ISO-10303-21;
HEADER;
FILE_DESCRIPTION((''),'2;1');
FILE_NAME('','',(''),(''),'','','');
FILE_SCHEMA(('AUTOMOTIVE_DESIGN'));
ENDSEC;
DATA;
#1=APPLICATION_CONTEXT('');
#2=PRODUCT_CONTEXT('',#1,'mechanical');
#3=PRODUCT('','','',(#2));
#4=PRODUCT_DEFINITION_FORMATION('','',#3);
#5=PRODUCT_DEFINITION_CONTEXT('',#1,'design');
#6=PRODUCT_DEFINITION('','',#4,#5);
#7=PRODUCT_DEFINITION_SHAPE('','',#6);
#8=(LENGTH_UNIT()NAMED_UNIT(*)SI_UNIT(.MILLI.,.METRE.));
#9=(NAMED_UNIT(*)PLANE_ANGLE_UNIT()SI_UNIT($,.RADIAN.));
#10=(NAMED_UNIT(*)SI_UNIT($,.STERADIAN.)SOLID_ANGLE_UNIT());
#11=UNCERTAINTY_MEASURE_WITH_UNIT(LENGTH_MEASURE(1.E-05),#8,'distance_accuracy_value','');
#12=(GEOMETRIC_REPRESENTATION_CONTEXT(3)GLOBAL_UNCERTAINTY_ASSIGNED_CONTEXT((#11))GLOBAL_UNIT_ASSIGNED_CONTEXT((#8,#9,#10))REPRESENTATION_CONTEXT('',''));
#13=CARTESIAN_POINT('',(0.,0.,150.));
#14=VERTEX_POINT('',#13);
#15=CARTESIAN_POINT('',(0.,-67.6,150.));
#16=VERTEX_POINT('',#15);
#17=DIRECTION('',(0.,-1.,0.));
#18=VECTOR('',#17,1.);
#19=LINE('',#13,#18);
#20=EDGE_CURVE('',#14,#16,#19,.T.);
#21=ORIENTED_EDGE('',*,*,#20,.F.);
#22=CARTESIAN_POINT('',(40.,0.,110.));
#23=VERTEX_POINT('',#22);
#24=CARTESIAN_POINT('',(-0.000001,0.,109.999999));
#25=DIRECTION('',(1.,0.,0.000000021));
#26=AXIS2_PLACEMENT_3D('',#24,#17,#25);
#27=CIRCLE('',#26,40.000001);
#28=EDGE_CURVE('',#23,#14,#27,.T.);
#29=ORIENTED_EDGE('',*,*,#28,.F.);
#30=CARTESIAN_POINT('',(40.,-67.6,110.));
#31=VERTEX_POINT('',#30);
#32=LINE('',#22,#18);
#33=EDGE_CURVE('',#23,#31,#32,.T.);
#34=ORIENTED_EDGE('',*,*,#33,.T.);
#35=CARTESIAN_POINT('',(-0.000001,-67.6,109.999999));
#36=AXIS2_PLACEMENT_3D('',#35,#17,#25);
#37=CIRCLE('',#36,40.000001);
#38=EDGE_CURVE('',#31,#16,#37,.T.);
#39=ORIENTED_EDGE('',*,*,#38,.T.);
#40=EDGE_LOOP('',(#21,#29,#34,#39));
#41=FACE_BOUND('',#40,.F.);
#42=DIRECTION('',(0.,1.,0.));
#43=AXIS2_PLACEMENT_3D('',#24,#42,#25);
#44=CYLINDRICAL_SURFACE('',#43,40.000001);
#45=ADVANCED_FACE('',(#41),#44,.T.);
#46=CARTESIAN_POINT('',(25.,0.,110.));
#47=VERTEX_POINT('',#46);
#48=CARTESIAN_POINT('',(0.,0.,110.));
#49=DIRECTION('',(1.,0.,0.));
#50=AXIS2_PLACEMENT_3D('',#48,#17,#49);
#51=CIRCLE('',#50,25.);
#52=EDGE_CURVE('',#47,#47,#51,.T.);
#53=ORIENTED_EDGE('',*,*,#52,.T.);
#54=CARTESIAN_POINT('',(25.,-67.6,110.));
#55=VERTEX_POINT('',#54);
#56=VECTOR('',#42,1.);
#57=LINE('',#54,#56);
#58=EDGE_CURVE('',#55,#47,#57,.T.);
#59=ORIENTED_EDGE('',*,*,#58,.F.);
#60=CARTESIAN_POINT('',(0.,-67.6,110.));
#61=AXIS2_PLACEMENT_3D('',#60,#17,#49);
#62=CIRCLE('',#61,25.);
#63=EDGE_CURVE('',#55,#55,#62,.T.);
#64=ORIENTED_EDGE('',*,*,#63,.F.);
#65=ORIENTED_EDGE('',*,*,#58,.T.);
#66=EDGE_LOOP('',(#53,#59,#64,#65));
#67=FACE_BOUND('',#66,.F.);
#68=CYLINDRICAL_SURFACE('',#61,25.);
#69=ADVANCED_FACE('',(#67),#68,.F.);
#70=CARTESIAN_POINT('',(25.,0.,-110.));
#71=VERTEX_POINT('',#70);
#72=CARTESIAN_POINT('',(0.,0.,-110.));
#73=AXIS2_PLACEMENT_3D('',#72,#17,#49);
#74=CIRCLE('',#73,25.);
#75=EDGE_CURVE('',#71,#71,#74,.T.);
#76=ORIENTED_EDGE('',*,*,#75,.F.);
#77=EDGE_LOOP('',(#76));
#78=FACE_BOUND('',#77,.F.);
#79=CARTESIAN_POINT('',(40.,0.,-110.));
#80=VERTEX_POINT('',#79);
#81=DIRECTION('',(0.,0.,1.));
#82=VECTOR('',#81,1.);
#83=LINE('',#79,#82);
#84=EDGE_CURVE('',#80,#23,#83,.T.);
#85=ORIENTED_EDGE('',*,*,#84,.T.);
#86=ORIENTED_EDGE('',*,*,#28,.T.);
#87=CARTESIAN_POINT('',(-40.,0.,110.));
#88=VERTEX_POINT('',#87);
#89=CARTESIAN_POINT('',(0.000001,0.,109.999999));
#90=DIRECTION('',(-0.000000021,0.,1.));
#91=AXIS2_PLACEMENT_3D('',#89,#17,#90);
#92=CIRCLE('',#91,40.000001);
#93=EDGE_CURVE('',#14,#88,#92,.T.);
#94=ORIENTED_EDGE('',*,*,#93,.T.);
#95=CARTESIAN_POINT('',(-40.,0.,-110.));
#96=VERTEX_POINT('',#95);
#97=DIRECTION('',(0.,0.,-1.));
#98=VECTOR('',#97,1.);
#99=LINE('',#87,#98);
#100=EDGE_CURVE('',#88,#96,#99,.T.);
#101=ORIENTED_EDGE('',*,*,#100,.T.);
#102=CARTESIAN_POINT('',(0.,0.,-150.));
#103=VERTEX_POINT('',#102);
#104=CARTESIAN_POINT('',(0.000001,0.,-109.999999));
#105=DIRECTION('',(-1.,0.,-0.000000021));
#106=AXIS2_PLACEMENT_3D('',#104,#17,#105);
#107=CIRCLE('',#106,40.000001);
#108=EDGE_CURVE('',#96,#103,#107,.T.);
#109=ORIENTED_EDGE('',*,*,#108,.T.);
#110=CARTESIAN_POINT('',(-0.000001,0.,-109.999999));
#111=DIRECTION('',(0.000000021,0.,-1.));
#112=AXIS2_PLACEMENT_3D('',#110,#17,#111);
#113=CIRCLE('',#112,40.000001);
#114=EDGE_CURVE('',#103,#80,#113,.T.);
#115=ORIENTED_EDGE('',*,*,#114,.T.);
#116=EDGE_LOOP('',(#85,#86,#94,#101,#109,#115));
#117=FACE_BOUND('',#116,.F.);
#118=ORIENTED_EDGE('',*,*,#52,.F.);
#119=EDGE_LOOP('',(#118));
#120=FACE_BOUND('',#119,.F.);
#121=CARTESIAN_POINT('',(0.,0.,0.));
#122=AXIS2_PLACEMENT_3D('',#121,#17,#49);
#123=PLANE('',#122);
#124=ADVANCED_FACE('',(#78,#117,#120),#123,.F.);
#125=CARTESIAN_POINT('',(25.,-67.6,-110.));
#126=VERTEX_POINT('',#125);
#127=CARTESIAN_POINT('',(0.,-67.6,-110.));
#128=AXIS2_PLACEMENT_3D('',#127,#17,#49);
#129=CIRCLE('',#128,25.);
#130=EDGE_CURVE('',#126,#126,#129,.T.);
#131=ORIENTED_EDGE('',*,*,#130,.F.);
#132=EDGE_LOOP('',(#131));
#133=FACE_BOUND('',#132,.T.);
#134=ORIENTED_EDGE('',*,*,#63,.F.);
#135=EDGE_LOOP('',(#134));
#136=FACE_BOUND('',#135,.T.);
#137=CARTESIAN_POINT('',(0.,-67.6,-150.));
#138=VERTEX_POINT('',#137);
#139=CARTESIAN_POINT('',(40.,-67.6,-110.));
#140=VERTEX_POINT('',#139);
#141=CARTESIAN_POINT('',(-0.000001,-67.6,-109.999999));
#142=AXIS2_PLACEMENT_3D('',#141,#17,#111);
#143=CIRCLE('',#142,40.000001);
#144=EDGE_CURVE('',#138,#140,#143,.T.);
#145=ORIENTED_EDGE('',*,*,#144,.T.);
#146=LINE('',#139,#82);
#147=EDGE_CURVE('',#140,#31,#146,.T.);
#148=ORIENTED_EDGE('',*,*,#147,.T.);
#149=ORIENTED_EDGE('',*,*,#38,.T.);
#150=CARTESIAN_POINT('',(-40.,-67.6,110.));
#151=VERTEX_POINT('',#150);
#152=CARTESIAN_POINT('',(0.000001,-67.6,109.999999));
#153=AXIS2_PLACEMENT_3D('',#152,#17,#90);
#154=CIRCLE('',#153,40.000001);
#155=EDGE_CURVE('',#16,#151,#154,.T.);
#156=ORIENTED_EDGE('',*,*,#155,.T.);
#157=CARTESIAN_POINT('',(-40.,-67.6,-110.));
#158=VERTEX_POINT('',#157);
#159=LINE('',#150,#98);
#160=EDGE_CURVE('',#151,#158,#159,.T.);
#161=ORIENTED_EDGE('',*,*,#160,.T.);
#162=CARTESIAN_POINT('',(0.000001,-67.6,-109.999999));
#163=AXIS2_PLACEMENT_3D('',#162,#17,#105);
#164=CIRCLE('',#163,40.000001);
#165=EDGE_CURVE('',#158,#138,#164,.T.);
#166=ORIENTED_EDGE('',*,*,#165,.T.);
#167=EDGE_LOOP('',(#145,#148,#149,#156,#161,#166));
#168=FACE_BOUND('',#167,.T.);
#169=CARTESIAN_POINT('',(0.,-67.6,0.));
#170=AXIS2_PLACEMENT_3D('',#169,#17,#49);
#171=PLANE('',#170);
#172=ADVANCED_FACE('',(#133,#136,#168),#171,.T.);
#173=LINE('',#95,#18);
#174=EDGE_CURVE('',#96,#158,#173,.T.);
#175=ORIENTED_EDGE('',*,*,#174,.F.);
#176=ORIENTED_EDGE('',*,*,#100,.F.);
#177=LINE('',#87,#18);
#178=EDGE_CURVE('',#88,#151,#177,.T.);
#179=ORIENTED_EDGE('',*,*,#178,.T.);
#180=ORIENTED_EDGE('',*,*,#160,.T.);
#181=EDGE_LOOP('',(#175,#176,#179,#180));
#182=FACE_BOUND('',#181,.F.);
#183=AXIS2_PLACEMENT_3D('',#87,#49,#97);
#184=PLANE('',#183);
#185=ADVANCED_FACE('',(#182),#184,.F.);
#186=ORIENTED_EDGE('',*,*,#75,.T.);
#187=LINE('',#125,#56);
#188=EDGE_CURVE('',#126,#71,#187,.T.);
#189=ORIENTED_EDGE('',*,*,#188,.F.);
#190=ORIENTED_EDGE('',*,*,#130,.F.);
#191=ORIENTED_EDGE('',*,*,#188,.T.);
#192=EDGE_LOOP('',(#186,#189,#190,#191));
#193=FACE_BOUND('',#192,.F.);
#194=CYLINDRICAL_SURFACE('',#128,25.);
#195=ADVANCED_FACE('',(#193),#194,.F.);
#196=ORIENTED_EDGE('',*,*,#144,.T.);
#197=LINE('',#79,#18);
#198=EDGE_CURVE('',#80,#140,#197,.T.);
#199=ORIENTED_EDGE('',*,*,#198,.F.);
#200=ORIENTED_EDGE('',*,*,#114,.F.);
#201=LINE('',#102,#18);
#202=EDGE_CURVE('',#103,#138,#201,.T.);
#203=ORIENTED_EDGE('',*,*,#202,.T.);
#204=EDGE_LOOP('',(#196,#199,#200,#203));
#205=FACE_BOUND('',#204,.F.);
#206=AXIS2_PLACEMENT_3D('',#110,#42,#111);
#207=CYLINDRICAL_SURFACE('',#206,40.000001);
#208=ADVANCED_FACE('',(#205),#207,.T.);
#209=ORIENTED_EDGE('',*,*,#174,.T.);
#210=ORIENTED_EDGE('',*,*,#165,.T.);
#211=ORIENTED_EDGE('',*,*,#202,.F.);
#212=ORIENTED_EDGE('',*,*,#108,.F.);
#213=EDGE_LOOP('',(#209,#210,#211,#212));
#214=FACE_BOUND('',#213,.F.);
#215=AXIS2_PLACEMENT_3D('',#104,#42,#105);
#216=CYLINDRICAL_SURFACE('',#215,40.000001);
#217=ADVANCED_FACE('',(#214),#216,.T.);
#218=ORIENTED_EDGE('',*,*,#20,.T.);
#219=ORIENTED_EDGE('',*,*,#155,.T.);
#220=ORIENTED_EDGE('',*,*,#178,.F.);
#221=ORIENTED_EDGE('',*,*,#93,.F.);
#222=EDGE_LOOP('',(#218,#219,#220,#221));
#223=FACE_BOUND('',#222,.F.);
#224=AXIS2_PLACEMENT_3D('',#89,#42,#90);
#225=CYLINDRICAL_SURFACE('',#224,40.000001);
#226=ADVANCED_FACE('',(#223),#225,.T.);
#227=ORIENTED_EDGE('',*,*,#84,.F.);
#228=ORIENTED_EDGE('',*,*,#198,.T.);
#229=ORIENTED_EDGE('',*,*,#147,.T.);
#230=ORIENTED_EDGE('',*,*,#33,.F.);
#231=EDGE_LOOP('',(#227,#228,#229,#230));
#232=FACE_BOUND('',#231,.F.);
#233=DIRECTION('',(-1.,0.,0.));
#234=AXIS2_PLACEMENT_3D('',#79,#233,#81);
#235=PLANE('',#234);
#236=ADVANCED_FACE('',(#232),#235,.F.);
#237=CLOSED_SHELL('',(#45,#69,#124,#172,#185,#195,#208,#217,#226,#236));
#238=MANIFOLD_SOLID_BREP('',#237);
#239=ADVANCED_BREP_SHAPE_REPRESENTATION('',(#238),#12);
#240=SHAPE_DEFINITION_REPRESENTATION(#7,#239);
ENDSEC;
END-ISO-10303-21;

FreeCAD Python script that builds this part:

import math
import FreeCAD as App
import Part
import Sketcher

doc = App.newDocument("Part")
body = doc.addObject("PartDesign::Body", "Body")

sketch1 = body.newObject("Sketcher::SketchObject", "Sketch")
sketch1.AttachmentSupport = (doc.getObject("XZ_Plane"), [""])
sketch1.MapMode = "FlatFace"
sketch1.addGeometry([
    Part.LineSegment(App.Vector(40, -110, 0), App.Vector(40, 110, 0)),
    Part.ArcOfCircle(Part.Circle(App.Vector(-0.000001, 109.999999, 0), App.Vector(0, 0, 1), 40.000001), math.radians(0.000001), math.radians(89.999999)),
    Part.ArcOfCircle(Part.Circle(App.Vector(0.000001, 109.999999, 0), App.Vector(0, 0, 1), 40.000001), math.radians(90.000001), math.radians(179.999999)),
    Part.LineSegment(App.Vector(-40, 110, 0), App.Vector(-40, -110, 0)),
    Part.ArcOfCircle(Part.Circle(App.Vector(0.000001, -109.999999, 0), App.Vector(0, 0, 1), 40.000001), math.radians(-179.999999), math.radians(-90.000001)),
    Part.ArcOfCircle(Part.Circle(App.Vector(-0.000001, -109.999999, 0), App.Vector(0, 0, 1), 40.000001), math.radians(-89.999999), math.radians(-0.000001)),
], False)
sketch1.addConstraint([
    Sketcher.Constraint("Tangent", 0, 2, 1, 1),
    Sketcher.Constraint("Tangent", 1, 2, 2, 1),
    Sketcher.Constraint("Tangent", 2, 2, 3, 1),
    Sketcher.Constraint("Tangent", 3, 2, 4, 1),
    Sketcher.Constraint("Tangent", 4, 2, 5, 1),
    Sketcher.Constraint("Tangent", 5, 2, 0, 1),
    Sketcher.Constraint("Vertical", 0),
    Sketcher.Constraint("Vertical", 3),
    Sketcher.Constraint("Equal", 1, 2),
    Sketcher.Constraint("Equal", 2, 4),
    Sketcher.Constraint("Symmetric", 1, 3, 4, 3, -1, 1),
    Sketcher.Constraint("PointOnObject", 1, 2, -2),
    Sketcher.Constraint("PointOnObject", 4, 2, -2),
    Sketcher.Constraint("Radius", 1, 40.000001),
    Sketcher.Constraint("DistanceY", 0, 1, 0, 2, 220.0),
])
pad1 = body.newObject("PartDesign::Pad", "Pad")
pad1.Profile = sketch1
pad1.Length = 67.6

sketch2 = body.newObject("Sketcher::SketchObject", "Sketch001")
sketch2.AttachmentSupport = (doc.getObject("XZ_Plane"), [""])
sketch2.MapMode = "FlatFace"
sketch2.AttachmentOffset = App.Placement(App.Vector(0, 0, 67.6), App.Rotation())
sketch2.addGeometry([
    Part.Circle(App.Vector(0, 110, 0), App.Vector(0, 0, 1), 25),
    Part.Circle(App.Vector(0, -110, 0), App.Vector(0, 0, 1), 25),
], False)
sketch2.addConstraint([
    Sketcher.Constraint("Equal", 0, 1),
    Sketcher.Constraint("Symmetric", 0, 3, 1, 3, -1, 1),
    Sketcher.Constraint("PointOnObject", 0, 3, -2),
    Sketcher.Constraint("Diameter", 0, 50.0),
    Sketcher.Constraint("DistanceY", -1, 1, 0, 3, 110.0),
])
pocket1 = body.newObject("PartDesign::Pocket", "Pocket")
pocket1.Profile = sketch2
pocket1.Type = "ThroughAll"

doc.recompute()
